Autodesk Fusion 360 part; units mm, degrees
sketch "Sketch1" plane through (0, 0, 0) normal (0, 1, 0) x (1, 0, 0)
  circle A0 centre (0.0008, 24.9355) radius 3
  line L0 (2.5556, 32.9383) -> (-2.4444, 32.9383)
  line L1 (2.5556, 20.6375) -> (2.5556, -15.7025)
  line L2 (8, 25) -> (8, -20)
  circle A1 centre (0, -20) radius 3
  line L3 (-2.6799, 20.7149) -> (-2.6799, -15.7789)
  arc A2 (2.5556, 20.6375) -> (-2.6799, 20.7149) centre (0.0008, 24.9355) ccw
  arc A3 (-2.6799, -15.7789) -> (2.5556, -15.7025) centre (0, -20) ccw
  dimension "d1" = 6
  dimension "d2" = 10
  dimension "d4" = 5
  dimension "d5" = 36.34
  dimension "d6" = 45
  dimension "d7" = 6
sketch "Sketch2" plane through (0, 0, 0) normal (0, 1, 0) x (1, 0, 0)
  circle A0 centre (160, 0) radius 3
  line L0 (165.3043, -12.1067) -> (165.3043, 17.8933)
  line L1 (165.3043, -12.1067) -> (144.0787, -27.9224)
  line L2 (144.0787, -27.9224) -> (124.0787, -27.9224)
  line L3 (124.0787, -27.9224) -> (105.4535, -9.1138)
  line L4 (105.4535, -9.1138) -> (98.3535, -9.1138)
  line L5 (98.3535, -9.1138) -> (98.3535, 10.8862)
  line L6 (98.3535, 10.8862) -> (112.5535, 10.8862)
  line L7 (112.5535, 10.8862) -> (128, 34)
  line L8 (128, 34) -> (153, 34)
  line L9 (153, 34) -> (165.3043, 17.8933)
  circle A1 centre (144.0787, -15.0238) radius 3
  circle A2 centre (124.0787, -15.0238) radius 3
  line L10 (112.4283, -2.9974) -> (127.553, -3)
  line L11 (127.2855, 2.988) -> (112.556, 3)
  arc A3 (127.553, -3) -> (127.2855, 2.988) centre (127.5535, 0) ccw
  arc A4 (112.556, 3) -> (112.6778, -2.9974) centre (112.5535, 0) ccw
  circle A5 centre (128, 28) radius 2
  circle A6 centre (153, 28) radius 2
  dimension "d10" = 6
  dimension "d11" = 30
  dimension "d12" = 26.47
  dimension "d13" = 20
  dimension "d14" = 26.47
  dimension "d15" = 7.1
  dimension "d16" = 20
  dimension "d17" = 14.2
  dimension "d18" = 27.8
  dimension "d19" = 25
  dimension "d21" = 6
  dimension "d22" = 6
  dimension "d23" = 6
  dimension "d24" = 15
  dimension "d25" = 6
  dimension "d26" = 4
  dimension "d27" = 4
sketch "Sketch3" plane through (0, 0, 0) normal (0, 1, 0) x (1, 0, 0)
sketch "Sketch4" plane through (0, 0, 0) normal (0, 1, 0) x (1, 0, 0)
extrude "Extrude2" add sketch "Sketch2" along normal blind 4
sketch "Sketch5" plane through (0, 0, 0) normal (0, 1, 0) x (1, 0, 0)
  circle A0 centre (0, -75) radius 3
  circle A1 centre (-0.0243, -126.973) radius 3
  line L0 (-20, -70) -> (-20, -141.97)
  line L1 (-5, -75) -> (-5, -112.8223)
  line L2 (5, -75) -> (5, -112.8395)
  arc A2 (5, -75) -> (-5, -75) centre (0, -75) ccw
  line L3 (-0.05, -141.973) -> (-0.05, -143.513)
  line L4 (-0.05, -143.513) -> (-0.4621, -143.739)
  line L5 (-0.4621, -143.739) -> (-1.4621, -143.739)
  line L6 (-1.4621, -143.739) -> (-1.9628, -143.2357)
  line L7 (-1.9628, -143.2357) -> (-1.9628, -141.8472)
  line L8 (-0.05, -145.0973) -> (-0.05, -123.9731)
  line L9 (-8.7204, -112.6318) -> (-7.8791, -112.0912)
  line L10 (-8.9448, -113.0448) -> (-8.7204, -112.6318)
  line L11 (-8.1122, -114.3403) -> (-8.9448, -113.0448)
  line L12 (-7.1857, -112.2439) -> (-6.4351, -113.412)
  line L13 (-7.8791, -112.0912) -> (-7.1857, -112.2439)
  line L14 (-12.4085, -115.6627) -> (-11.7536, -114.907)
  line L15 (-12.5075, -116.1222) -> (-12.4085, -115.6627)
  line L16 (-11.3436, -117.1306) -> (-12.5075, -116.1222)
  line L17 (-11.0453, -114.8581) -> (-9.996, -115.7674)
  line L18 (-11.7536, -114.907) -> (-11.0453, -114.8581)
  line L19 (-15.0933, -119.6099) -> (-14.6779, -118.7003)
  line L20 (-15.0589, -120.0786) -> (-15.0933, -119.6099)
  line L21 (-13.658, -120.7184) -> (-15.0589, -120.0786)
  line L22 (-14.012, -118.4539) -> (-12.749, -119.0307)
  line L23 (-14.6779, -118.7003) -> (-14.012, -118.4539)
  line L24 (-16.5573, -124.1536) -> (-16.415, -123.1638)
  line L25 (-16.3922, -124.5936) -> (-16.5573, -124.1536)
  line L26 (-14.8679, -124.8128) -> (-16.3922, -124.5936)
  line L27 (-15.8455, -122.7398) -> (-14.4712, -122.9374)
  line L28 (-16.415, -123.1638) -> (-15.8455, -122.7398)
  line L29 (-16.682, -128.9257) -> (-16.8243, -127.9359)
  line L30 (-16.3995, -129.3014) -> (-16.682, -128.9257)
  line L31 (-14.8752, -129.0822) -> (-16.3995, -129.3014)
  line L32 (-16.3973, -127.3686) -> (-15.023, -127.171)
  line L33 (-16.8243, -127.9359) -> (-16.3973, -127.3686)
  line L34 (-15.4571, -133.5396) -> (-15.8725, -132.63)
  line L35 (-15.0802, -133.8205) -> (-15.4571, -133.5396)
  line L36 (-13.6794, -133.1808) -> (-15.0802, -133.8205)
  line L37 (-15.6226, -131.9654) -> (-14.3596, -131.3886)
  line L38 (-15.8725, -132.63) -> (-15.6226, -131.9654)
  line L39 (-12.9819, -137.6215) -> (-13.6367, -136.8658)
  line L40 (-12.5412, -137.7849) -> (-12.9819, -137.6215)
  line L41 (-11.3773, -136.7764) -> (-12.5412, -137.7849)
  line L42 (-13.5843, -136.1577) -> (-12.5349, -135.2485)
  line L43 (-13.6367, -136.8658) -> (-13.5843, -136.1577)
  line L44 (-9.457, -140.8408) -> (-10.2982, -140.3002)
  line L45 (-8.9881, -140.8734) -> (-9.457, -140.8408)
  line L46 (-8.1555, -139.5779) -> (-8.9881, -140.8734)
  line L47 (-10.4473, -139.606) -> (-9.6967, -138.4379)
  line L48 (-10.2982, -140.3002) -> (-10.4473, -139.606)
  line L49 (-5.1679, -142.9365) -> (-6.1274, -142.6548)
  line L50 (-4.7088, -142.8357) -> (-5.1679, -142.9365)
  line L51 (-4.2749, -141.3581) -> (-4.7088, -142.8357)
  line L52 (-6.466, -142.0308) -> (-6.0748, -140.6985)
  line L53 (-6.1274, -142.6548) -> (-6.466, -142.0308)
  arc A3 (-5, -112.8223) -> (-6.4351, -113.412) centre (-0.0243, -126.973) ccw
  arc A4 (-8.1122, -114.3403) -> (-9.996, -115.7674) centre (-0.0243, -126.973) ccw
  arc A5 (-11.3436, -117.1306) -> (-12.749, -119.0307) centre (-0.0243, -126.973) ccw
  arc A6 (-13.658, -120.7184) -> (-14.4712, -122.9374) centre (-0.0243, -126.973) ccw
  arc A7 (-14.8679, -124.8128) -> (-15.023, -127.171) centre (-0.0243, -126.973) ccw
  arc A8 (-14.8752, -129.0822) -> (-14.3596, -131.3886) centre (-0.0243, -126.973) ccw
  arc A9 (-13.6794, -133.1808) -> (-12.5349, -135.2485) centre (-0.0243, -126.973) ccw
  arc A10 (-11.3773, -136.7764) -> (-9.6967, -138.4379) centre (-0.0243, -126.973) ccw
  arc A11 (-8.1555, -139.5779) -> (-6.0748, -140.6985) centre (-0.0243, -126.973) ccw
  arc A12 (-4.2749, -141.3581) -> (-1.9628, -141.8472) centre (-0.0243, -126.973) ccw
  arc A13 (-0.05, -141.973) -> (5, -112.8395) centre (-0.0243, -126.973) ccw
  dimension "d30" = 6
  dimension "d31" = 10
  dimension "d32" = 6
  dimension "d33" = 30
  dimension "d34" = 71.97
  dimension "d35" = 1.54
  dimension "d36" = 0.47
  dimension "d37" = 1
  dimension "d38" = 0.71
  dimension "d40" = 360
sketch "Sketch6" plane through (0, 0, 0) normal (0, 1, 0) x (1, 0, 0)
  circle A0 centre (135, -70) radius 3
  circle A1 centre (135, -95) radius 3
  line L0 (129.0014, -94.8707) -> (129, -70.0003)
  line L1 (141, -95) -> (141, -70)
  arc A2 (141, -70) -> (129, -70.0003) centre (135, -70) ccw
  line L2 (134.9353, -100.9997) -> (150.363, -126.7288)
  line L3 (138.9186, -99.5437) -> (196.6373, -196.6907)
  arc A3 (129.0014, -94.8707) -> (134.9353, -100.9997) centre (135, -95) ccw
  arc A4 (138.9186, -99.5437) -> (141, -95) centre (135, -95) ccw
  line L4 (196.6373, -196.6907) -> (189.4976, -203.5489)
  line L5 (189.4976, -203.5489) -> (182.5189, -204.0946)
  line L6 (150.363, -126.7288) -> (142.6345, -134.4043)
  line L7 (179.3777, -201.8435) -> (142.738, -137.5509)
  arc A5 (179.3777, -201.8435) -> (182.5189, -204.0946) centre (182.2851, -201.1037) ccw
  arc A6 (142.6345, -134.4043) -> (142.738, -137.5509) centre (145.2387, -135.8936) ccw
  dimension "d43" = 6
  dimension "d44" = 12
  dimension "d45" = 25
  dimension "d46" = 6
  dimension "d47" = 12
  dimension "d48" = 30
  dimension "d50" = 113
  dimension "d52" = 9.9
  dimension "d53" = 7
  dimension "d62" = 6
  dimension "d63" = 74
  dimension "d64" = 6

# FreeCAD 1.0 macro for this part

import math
import FreeCAD as App
import Part
import Sketcher
from FreeCAD import Vector
Q = App.Units.Quantity

doc = App.newDocument("Part")
params = doc.addObject("Spreadsheet::Sheet", "Params")
for row, (alias, value) in enumerate([
    ("sketch1_diameter", "6 mm"),
    ("sketch1_diameter2", "4 mm"),
    ("sketch1_width", "25 mm"),
    ("sketch1_width2", "20 mm"),
    ("sketch1_height", "30 mm"),
    ("pad1_length", "4 mm"),
], start=1):
    params.set(f"A{row}", alias)
    params.set(f"B{row}", "=" + value)
    params.setAlias(f"B{row}", alias)

body = doc.addObject("PartDesign::Body", "Body")

sketch1 = body.newObject("Sketcher::SketchObject", "Sketch")
sketch1.AttachmentSupport = (doc.getObject("XZ_Plane"), [""])
sketch1.MapMode = "FlatFace"
sketch1.addGeometry(Part.LineSegment(Vector(144.1, 27.9, 0), Vector(165.3, 12.1, 0)), False)
sketch1.addGeometry(Part.LineSegment(Vector(165.3, 12.1, 0), Vector(165.3, -17.9, 0)), False)
sketch1.addGeometry(Part.LineSegment(Vector(165.3, -17.9, 0), Vector(153, -34, 0)), False)
sketch1.addGeometry(Part.LineSegment(Vector(153, -34, 0), Vector(128, -34, 0)), False)
sketch1.addGeometry(Part.LineSegment(Vector(128, -34, 0), Vector(112.6, -10.9, 0)), False)
sketch1.addGeometry(Part.LineSegment(Vector(112.6, -10.9, 0), Vector(98.4, -10.9, 0)), False)
sketch1.addGeometry(Part.LineSegment(Vector(98.4, -10.9, 0), Vector(98.4, 9.1, 0)), False)
sketch1.addGeometry(Part.LineSegment(Vector(98.4, 9.1, 0), Vector(105.5, 9.1, 0)), False)
sketch1.addGeometry(Part.LineSegment(Vector(105.5, 9.1, 0), Vector(124.1, 27.9, 0)), False)
sketch1.addGeometry(Part.LineSegment(Vector(124.1, 27.9, 0), Vector(144.1, 27.9, 0)), False)
sketch1.addGeometry(Part.Circle(Vector(124.1, 15, 0), Vector(0, 0, 1), 3), False)
sketch1.addGeometry(Part.LineSegment(Vector(127.6, 3, 0), Vector(112.4, 3, 0)), False)
sketch1.addGeometry(Part.ArcOfCircle(Part.Circle(Vector(112.6, 0, 0), Vector(0, 0, 1), 3), math.radians(92), math.radians(270)), False)
sketch1.addGeometry(Part.LineSegment(Vector(112.6, -3, 0), Vector(127.3, -3, 0)), False)
sketch1.addGeometry(Part.ArcOfCircle(Part.Circle(Vector(127.6, 0, 0), Vector(0, 0, 1), 3), math.radians(-95), math.radians(90)), False)
sketch1.addGeometry(Part.Circle(Vector(144.1, 15, 0), Vector(0, 0, 1), 3), False)
sketch1.addGeometry(Part.Circle(Vector(160, 0, 0), Vector(0, 0, 1), 3), False)
sketch1.addGeometry(Part.Circle(Vector(128, -28, 0), Vector(0, 0, 1), 2), False)
sketch1.addGeometry(Part.Circle(Vector(153, -28, 0), Vector(0, 0, 1), 2), False)
sketch1.addConstraint(Sketcher.Constraint("Coincident", 0, 2, 1, 1))
sketch1.addConstraint(Sketcher.Constraint("Coincident", 1, 2, 2, 1))
sketch1.addConstraint(Sketcher.Constraint("Coincident", 2, 2, 3, 1))
sketch1.addConstraint(Sketcher.Constraint("Coincident", 3, 2, 4, 1))
sketch1.addConstraint(Sketcher.Constraint("Coincident", 4, 2, 5, 1))
sketch1.addConstraint(Sketcher.Constraint("Coincident", 5, 2, 6, 1))
sketch1.addConstraint(Sketcher.Constraint("Coincident", 6, 2, 7, 1))
sketch1.addConstraint(Sketcher.Constraint("Coincident", 7, 2, 8, 1))
sketch1.addConstraint(Sketcher.Constraint("Coincident", 8, 2, 9, 1))
sketch1.addConstraint(Sketcher.Constraint("Coincident", 9, 2, 0, 1))
sketch1.addConstraint(Sketcher.Constraint("Coincident", 11, 2, 12, 1))
sketch1.addConstraint(Sketcher.Constraint("Tangent", 12, 2, 13, 1))
sketch1.addConstraint(Sketcher.Constraint("Coincident", 13, 2, 14, 1))
sketch1.addConstraint(Sketcher.Constraint("Tangent", 14, 2, 11, 1))
sketch1.addConstraint(Sketcher.Constraint("Vertical", 1))
sketch1.addConstraint(Sketcher.Constraint("Horizontal", 3))
sketch1.addConstraint(Sketcher.Constraint("Horizontal", 5))
sketch1.addConstraint(Sketcher.Constraint("Vertical", 6))
sketch1.addConstraint(Sketcher.Constraint("Horizontal", 7))
sketch1.addConstraint(Sketcher.Constraint("Horizontal", 9))
sketch1.addConstraint(Sketcher.Constraint("Equal", 10, 12))
sketch1.addConstraint(Sketcher.Constraint("Equal", 12, 14))
sketch1.addConstraint(Sketcher.Constraint("Equal", 14, 15))
sketch1.addConstraint(Sketcher.Constraint("Equal", 15, 16))
sketch1.addConstraint(Sketcher.Constraint("Equal", 17, 18))
sketch1.addConstraint(Sketcher.Constraint("PointOnObject", 12, 3, -1))
sketch1.addConstraint(Sketcher.Constraint("PointOnObject", 14, 3, -1))
sketch1.addConstraint(Sketcher.Constraint("PointOnObject", 16, 3, -1))
sketch1.addConstraint(Sketcher.Constraint("Horizontal", 10, 3, 15, 3))
sketch1.addConstraint(Sketcher.Constraint("Horizontal", 17, 3, 18, 3))
sketch1.addConstraint(Sketcher.Constraint("Vertical", 18, 3, 2, 2))
sketch1.addConstraint(Sketcher.Constraint("Vertical", 17, 3, 3, 2))
sketch1.addConstraint(Sketcher.Constraint("Vertical", 12, 3, 4, 2))
sketch1.addConstraint(Sketcher.Constraint("Vertical", 10, 3, 8, 2))
sketch1.addConstraint(Sketcher.Constraint("Vertical", 15, 3, 9, 2))
sketch1.addConstraint(Sketcher.Constraint("Equal", 9, 6))
sketch1.addConstraint(Sketcher.Constraint("Equal", 0, 8))
sketch1.addConstraint(Sketcher.Constraint("Diameter", 10, 6.0))
sketch1.addConstraint(Sketcher.Constraint("Diameter", 17, 4.0))
sketch1.addConstraint(Sketcher.Constraint("DistanceX", 3, 2, 3, 1, 25.0))
sketch1.addConstraint(Sketcher.Constraint("DistanceX", 9, 1, 9, 2, 20.0))
sketch1.addConstraint(Sketcher.Constraint("DistanceY", 1, 2, 1, 1, 30.0))
sketch1.addConstraint(Sketcher.Constraint("DistanceX", 5, 2, 5, 1, 14.2))
sketch1.addConstraint(Sketcher.Constraint("DistanceX", 7, 1, 7, 2, 7.1))
sketch1.addConstraint(Sketcher.Constraint("DistanceX", 12, 3, 14, 3, 15.0))
sketch1.addConstraint(Sketcher.Constraint("DistanceY", 2, 2, 18, 3, 6.0))
sketch1.addConstraint(Sketcher.Constraint("Distance", 4, 27.8))
sketch1.addConstraint(Sketcher.Constraint("Distance", 0, 26.47))
sketch1.addConstraint(Sketcher.Constraint("DistanceX", -1, 1, 16, 3, 160.0))
sketch1.addConstraint(Sketcher.Constraint("DistanceX", -1, 1, 17, 3, 128.0))
sketch1.addConstraint(Sketcher.Constraint("DistanceY", 17, 3, -1, 1, 28.0))
sketch1.addConstraint(Sketcher.Constraint("Angle", 0, Q("-36.6907 deg")))
sketch1.addConstraint(Sketcher.Constraint("Angle", 8, Q("45.2807 deg")))
sketch1.addConstraint(Sketcher.Constraint("Angle", 11, Q("-179.9902 deg")))
sketch1.addConstraint(Sketcher.Constraint("DistanceY", 4, 2, 10, 3, 25.91))
sketch1.addConstraint(Sketcher.Constraint("DistanceX", -1, 1, 12, 2, 112.556))
sketch1.addConstraint(Sketcher.Constraint("DistanceY", 13, 2, -1, 1, 2.988))
sketch1.setExpression("Constraints[37]", "Params.sketch1_diameter")
sketch1.setExpression("Constraints[38]", "Params.sketch1_diameter2")
sketch1.setExpression("Constraints[39]", "Params.sketch1_width")
sketch1.setExpression("Constraints[40]", "Params.sketch1_width2")
sketch1.setExpression("Constraints[41]", "Params.sketch1_height")
pad1 = body.newObject("PartDesign::Pad", "Pad")
pad1.Profile = sketch1
pad1.setExpression("Length", "Params.pad1_length")
pad1.Reversed = True

doc.recompute()
